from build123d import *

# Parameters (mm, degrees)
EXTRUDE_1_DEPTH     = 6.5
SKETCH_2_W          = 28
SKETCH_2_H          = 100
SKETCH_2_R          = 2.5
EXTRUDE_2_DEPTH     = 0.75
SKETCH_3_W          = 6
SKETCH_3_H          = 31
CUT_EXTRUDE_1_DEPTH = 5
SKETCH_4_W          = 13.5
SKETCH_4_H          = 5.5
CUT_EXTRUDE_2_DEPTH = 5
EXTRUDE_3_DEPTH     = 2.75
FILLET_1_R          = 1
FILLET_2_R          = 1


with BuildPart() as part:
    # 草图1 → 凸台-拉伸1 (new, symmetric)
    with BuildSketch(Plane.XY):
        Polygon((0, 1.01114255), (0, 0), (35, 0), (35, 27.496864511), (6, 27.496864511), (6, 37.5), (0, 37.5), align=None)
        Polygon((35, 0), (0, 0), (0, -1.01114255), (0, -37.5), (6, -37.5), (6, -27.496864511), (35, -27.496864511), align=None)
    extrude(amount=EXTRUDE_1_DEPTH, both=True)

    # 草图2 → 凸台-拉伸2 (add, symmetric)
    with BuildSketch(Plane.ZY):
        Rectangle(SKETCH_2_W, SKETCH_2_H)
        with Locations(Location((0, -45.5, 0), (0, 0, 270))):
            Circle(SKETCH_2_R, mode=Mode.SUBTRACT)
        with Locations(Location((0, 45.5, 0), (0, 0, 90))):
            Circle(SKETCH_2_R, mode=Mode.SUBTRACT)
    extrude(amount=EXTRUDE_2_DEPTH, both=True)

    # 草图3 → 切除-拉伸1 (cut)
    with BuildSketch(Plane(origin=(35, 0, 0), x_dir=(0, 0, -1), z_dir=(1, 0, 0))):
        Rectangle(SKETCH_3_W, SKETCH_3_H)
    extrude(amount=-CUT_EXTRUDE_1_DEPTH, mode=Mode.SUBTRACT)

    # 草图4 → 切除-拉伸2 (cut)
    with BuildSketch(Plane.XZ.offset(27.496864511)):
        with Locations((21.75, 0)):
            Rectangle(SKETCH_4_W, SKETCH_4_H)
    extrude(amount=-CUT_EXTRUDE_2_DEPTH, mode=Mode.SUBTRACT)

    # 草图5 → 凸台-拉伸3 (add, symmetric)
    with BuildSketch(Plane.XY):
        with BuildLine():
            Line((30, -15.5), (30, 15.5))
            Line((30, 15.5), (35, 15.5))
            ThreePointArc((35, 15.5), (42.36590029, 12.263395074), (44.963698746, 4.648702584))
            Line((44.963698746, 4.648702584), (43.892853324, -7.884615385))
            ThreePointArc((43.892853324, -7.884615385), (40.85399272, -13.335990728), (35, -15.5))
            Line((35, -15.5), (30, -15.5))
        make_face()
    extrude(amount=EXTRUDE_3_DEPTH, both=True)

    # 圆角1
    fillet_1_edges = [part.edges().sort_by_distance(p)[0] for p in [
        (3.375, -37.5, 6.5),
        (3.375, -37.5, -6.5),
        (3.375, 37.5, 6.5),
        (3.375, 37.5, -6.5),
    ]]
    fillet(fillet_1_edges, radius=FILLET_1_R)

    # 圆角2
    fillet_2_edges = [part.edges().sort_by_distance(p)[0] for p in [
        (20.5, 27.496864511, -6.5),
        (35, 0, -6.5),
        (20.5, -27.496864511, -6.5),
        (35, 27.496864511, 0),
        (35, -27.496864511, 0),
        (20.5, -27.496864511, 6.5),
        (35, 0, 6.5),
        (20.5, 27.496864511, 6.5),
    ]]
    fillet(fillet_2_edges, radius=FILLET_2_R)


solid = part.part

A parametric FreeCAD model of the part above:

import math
import FreeCAD as App
import Part
import Sketcher
from FreeCAD import Vector


def edges_at(feature, points):
    """Names of the edges that pass closest to the given points."""
    edges = feature.Shape.Edges
    near = lambda p: min(range(len(edges)), key=lambda i: edges[i].distToShape(Part.Vertex(*p))[0])
    return sorted({f"Edge{near(p) + 1}" for p in points})


def add_polygon(sketch, points):
    """Adds a closed chain of lines whose ends are joined by coincident constraints."""
    first, n = sketch.GeometryCount, len(points)
    for a, b in zip(points, points[1:] + points[:1]):
        sketch.addGeometry(Part.LineSegment(App.Vector(*a, 0), App.Vector(*b, 0)), False)
    for i in range(n):
        sketch.addConstraint(Sketcher.Constraint("Coincident", first + i, 2, first + (i + 1) % n, 1))

doc = App.newDocument("Part")
body = doc.addObject("PartDesign::Body", "Body")

# Sketch on XY plane
sketch1 = body.newObject("Sketcher::SketchObject", "Sketch")
sketch1.AttachmentSupport = (doc.getObject("XY_Plane"), [""])
sketch1.MapMode = "FlatFace"
add_polygon(sketch1, [(35, 27), (6, 27), (6, 38), (0, 38), (0, -38), (6, -38), (6, -27), (35, -27)])  # lines 0-7
sketch1.addConstraint(Sketcher.Constraint("Horizontal", 0))
sketch1.addConstraint(Sketcher.Constraint("Vertical", 1))
sketch1.addConstraint(Sketcher.Constraint("Horizontal", 2))
sketch1.addConstraint(Sketcher.Constraint("Vertical", 3))
sketch1.addConstraint(Sketcher.Constraint("Horizontal", 4))
sketch1.addConstraint(Sketcher.Constraint("Vertical", 5))
sketch1.addConstraint(Sketcher.Constraint("Horizontal", 6))
sketch1.addConstraint(Sketcher.Constraint("Vertical", 7))
sketch1.addConstraint(Sketcher.Constraint("Symmetric", 2, 2, 3, 2, -1, 1))
sketch1.addConstraint(Sketcher.Constraint("Symmetric", 0, 2, 5, 2, -1))
sketch1.addConstraint(Sketcher.Constraint("DistanceX", 0, 2, 0, 1, 29.0))
sketch1.addConstraint(Sketcher.Constraint("DistanceX", 2, 2, 2, 1, 6.0))
sketch1.addConstraint(Sketcher.Constraint("DistanceY", 3, 2, 3, 1, 75.0))
sketch1.addConstraint(Sketcher.Constraint("DistanceY", 7, 1, 7, 2, 54.993729))
pad1 = body.newObject("PartDesign::Pad", "Pad")
pad1.Profile = sketch1
pad1.Length = 13
pad1.Midplane = True

# Sketch on YZ plane
sketch2 = body.newObject("Sketcher::SketchObject", "Sketch001")
sketch2.AttachmentSupport = (doc.getObject("YZ_Plane"), [""])
sketch2.MapMode = "FlatFace"
add_polygon(sketch2, [(50, -14), (-50, -14), (-50, 14), (50, 14)])  # lines 0-3
sketch2.addGeometry(Part.Circle(Vector(-45.5, 0, 0), Vector(0, 0, 1), 2.5), False)  # 4
sketch2.addGeometry(Part.Circle(Vector(45.5, 0, 0), Vector(0, 0, 1), 2.5), False)  # 5
sketch2.addConstraint(Sketcher.Constraint("Horizontal", 0))
sketch2.addConstraint(Sketcher.Constraint("Vertical", 1))
sketch2.addConstraint(Sketcher.Constraint("Horizontal", 2))
sketch2.addConstraint(Sketcher.Constraint("Vertical", 3))
sketch2.addConstraint(Sketcher.Constraint("Equal", 4, 5))
sketch2.addConstraint(Sketcher.Constraint("Symmetric", 4, 3, 5, 3, -1, 1))
sketch2.addConstraint(Sketcher.Constraint("Symmetric", 0, 2, 2, 2, -1, 1))
sketch2.addConstraint(Sketcher.Constraint("PointOnObject", 4, 3, -1))
sketch2.addConstraint(Sketcher.Constraint("Diameter", 4, 5.0))
sketch2.addConstraint(Sketcher.Constraint("DistanceX", 0, 2, 0, 1, 100.0))
sketch2.addConstraint(Sketcher.Constraint("DistanceY", 1, 1, 1, 2, 28.0))
sketch2.addConstraint(Sketcher.Constraint("DistanceX", 4, 3, 5, 3, 91.0))
pad2 = body.newObject("PartDesign::Pad", "Pad001")
pad2.Profile = sketch2
pad2.Length = 1.5
pad2.Midplane = True

# Sketch on YZ plane
sketch3 = body.newObject("Sketcher::SketchObject", "Sketch002")
sketch3.AttachmentSupport = (doc.getObject("YZ_Plane"), [""])
sketch3.MapMode = "FlatFace"
sketch3.AttachmentOffset = App.Placement(Vector(0, 0, 35), App.Rotation())
add_polygon(sketch3, [(16, 3), (-16, 3), (-16, -3), (16, -3)])  # lines 0-3
sketch3.addConstraint(Sketcher.Constraint("Horizontal", 0))
sketch3.addConstraint(Sketcher.Constraint("Vertical", 1))
sketch3.addConstraint(Sketcher.Constraint("Horizontal", 2))
sketch3.addConstraint(Sketcher.Constraint("Vertical", 3))
sketch3.addConstraint(Sketcher.Constraint("Symmetric", 0, 2, 2, 2, -1, 1))
sketch3.addConstraint(Sketcher.Constraint("DistanceX", 0, 2, 0, 1, 31.0))
sketch3.addConstraint(Sketcher.Constraint("DistanceY", 1, 2, 1, 1, 6.0))
pocket1 = body.newObject("PartDesign::Pocket", "Pocket")
pocket1.Profile = sketch3
pocket1.Length = 5

# Sketch on XZ plane
sketch4 = body.newObject("Sketcher::SketchObject", "Sketch003")
sketch4.AttachmentSupport = (doc.getObject("XZ_Plane"), [""])
sketch4.MapMode = "FlatFace"
sketch4.AttachmentOffset = App.Placement(Vector(0, 0, 27.496865), App.Rotation())
add_polygon(sketch4, [(15, 3), (15, -3), (28, -3), (28, 3)])  # lines 0-3
sketch4.addConstraint(Sketcher.Constraint("Vertical", 0))
sketch4.addConstraint(Sketcher.Constraint("Horizontal", 1))
sketch4.addConstraint(Sketcher.Constraint("Vertical", 2))
sketch4.addConstraint(Sketcher.Constraint("Horizontal", 3))
sketch4.addConstraint(Sketcher.Constraint("DistanceX", 1, 1, 1, 2, 13.5))
sketch4.addConstraint(Sketcher.Constraint("DistanceY", 0, 2, 0, 1, 5.5))
sketch4.addConstraint(Sketcher.Constraint("DistanceX", -1, 1, 0, 2, 15.0))
sketch4.addConstraint(Sketcher.Constraint("DistanceY", 0, 2, -1, 1, 2.75))
pocket2 = body.newObject("PartDesign::Pocket", "Pocket001")
pocket2.Profile = sketch4
pocket2.Length = 5

# Sketch on XY plane
sketch5 = body.newObject("Sketcher::SketchObject", "Sketch004")
sketch5.AttachmentSupport = (doc.getObject("XY_Plane"), [""])
sketch5.MapMode = "FlatFace"
sketch5.addGeometry(Part.LineSegment(Vector(30, 15.5, 0), Vector(30, -15.5, 0)), False)
sketch5.addGeometry(Part.LineSegment(Vector(30, -15.5, 0), Vector(35, -15.5, 0)), False)
sketch5.addGeometry(Part.ArcOfCircle(Part.Circle(Vector(35, -6.5, 0), Vector(0, 0, 1), 9), math.radians(-90), math.radians(-8.849883)), False)
sketch5.addGeometry(Part.LineSegment(Vector(43.892853, -7.884615, 0), Vector(44.963699, 4.648703, 0)), False)
sketch5.addGeometry(Part.ArcOfCircle(Part.Circle(Vector(35, 5.5, 0), Vector(0, 0, 1), 10), math.radians(-4.883486), math.radians(90)), False)
sketch5.addGeometry(Part.LineSegment(Vector(35, 15.5, 0), Vector(30, 15.5, 0)), False)
sketch5.addConstraint(Sketcher.Constraint("Coincident", 0, 2, 1, 1))
sketch5.addConstraint(Sketcher.Constraint("Coincident", 1, 2, 2, 1))
sketch5.addConstraint(Sketcher.Constraint("Coincident", 2, 2, 3, 1))
sketch5.addConstraint(Sketcher.Constraint("Coincident", 3, 2, 4, 1))
sketch5.addConstraint(Sketcher.Constraint("Coincident", 4, 2, 5, 1))
sketch5.addConstraint(Sketcher.Constraint("Coincident", 5, 2, 0, 1))
sketch5.addConstraint(Sketcher.Constraint("Vertical", 0))
sketch5.addConstraint(Sketcher.Constraint("Horizontal", 1))
sketch5.addConstraint(Sketcher.Constraint("Horizontal", 5))
sketch5.addConstraint(Sketcher.Constraint("Radius", 2, 9.0))
sketch5.addConstraint(Sketcher.Constraint("Radius", 4, 10.0))
sketch5.addConstraint(Sketcher.Constraint("DistanceX", 1, 1, 1, 2, 5.0))
sketch5.addConstraint(Sketcher.Constraint("DistanceX", 5, 2, 5, 1, 5.0))
sketch5.addConstraint(Sketcher.Constraint("DistanceY", 0, 2, 0, 1, 31.0))
sketch5.addConstraint(Sketcher.Constraint("DistanceX", -1, 1, 2, 3, 35.0))
sketch5.addConstraint(Sketcher.Constraint("DistanceX", -1, 1, 4, 3, 35.0))
sketch5.addConstraint(Sketcher.Constraint("DistanceX", -1, 1, 0, 2, 30.0))
sketch5.addConstraint(Sketcher.Constraint("DistanceY", 2, 3, -1, 1, 6.5))
sketch5.addConstraint(Sketcher.Constraint("DistanceX", -1, 1, 3, 2, 44.963699))
sketch5.addConstraint(Sketcher.Constraint("Distance", 3, 12.578981))
pad3 = body.newObject("PartDesign::Pad", "Pad002")
pad3.Profile = sketch5
pad3.Length = 5.5
pad3.Midplane = True
doc.recompute()

fillet = body.newObject("PartDesign::Fillet", "Fillet")
fillet.Base = (pad3, edges_at(pad3, [
    (3.375, -37.5, 6.5),
    (3.375, -37.5, -6.5),
    (3.375, 37.5, 6.5),
    (3.375, 37.5, -6.5),
]))
fillet.Radius = 1
doc.recompute()

fillet2 = body.newObject("PartDesign::Fillet", "Fillet001")
fillet2.Base = (fillet, edges_at(fillet, [
    (20.5, 27.497, -6.5),
    (35, 0, -6.5),
    (20.5, -27.497, -6.5),
    (35, 27.497, 0),
    (35, -27.497, 0),
    (20.5, -27.497, 6.5),
    (35, 0, 6.5),
    (20.5, 27.497, 6.5),
]))
fillet2.Radius = 1

doc.recompute()
